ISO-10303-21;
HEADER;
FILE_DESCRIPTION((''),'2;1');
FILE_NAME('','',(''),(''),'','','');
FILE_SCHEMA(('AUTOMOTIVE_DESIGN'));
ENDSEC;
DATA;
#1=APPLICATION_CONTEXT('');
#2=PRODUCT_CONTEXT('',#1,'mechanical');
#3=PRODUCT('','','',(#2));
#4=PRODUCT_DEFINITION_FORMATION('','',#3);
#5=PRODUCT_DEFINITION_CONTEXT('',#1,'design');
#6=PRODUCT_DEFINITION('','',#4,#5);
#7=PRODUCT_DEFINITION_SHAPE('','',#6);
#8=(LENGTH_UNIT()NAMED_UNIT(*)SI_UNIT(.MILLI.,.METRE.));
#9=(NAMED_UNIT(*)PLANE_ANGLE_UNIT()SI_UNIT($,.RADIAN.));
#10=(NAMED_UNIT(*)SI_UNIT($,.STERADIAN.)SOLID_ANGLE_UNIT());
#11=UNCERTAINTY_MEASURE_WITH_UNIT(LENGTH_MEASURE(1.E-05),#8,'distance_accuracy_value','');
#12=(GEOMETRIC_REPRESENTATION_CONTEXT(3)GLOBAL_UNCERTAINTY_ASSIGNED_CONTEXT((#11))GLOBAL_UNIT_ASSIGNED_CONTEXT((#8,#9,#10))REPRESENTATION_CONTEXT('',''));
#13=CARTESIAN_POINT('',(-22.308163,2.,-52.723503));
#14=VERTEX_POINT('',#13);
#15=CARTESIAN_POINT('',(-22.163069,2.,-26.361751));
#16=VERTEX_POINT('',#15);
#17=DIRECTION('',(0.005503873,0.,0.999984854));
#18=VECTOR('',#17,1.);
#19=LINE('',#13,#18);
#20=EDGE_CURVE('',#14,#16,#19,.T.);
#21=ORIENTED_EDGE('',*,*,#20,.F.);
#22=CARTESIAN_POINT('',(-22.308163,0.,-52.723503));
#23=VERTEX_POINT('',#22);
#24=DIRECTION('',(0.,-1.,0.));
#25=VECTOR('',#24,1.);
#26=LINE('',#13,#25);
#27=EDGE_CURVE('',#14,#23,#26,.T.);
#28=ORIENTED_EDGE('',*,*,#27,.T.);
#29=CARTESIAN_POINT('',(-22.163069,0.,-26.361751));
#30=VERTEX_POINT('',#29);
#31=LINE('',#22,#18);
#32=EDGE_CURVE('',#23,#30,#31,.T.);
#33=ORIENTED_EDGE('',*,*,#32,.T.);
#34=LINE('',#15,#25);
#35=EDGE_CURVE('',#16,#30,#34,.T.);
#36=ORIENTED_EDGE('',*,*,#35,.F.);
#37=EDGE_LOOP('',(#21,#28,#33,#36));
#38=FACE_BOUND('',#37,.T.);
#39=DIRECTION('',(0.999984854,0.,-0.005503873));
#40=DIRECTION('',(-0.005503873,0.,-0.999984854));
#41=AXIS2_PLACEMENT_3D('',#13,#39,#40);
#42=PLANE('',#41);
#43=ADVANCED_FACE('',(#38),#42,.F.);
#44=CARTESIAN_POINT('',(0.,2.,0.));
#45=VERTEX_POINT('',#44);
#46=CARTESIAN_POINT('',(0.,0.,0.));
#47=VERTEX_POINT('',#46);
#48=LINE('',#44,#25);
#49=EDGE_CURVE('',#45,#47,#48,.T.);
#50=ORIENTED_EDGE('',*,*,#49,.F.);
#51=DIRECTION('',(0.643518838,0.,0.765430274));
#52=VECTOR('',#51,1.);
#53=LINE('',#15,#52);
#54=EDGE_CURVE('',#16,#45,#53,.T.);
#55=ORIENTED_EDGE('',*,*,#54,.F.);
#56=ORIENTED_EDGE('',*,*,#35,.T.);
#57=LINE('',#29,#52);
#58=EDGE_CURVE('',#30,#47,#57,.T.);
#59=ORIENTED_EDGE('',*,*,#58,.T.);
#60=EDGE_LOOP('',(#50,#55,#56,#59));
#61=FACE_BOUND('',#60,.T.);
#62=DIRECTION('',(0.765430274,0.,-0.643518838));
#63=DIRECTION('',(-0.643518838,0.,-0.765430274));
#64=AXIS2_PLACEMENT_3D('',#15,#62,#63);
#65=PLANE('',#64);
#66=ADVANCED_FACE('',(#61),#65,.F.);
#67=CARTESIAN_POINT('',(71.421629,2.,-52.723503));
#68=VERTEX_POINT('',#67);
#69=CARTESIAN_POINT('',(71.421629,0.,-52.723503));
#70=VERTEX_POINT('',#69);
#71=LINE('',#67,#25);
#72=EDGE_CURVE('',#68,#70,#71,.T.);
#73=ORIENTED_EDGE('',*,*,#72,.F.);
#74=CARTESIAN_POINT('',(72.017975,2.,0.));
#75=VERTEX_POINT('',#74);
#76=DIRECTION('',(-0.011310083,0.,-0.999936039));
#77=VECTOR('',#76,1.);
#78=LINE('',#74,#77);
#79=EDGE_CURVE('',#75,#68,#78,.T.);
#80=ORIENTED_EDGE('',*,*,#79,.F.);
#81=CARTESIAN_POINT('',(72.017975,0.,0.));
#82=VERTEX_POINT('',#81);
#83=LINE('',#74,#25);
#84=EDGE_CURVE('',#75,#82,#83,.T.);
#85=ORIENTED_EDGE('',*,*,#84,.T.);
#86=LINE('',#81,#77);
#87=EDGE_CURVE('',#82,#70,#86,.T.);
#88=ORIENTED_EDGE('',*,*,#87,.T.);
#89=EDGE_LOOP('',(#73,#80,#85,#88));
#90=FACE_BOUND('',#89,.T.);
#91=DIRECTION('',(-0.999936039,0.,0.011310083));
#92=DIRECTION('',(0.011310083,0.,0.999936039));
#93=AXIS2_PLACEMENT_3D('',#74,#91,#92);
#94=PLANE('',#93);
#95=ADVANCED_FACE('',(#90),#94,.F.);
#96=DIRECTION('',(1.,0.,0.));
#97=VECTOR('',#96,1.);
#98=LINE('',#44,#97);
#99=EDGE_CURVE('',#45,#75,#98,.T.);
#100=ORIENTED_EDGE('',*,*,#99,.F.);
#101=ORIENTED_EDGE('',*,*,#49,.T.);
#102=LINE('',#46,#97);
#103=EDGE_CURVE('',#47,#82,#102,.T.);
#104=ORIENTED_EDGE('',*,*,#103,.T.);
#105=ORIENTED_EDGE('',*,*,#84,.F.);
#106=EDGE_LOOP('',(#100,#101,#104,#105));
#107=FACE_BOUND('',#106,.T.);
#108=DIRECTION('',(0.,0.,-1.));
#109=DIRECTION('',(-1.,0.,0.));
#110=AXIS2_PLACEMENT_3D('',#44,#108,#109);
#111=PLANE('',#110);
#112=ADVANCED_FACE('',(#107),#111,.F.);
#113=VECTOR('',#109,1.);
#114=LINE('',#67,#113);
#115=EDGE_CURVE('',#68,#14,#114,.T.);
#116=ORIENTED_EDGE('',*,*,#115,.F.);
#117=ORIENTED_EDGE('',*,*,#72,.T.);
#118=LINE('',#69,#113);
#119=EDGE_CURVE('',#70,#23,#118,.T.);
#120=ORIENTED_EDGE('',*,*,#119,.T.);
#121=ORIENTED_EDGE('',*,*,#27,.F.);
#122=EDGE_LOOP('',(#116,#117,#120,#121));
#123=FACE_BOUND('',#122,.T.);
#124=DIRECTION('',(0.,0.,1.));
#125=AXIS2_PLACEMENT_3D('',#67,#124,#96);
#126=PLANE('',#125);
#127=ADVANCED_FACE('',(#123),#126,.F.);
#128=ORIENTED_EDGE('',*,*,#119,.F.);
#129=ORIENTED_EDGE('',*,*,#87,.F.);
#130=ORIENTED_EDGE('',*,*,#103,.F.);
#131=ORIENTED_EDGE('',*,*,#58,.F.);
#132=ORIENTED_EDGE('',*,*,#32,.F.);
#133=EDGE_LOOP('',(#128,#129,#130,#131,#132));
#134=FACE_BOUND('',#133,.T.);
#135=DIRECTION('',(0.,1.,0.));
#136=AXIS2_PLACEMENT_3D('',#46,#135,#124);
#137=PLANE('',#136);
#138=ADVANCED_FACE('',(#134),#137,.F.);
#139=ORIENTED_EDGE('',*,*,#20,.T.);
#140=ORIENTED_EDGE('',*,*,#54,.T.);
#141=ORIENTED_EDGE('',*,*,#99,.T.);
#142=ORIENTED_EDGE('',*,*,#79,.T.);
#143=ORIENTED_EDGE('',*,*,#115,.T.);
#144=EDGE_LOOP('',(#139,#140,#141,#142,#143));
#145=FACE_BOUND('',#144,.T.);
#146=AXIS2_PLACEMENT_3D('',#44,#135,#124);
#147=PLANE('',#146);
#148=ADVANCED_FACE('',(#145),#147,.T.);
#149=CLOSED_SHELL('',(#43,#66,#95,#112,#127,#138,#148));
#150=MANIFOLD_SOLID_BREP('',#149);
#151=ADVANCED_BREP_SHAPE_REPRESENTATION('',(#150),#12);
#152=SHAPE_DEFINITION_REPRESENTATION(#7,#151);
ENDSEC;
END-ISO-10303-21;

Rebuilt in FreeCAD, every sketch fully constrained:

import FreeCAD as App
import Part
import Sketcher

V = App.Vector
Q = App.Units.Quantity


def add_polygon(sketch, points):
    """Adds a closed chain of lines whose ends are joined by coincident constraints."""
    first, n = sketch.GeometryCount, len(points)
    for a, b in zip(points, points[1:] + points[:1]):
        sketch.addGeometry(Part.LineSegment(App.Vector(*a, 0), App.Vector(*b, 0)), False)
    for i in range(n):
        sketch.addConstraint(Sketcher.Constraint("Coincident", first + i, 2, first + (i + 1) % n, 1))

doc = App.newDocument("Part")
body = doc.addObject("PartDesign::Body", "Body")

# Sketch on XZ plane
sketch1 = body.newObject("Sketcher::SketchObject", "Sketch")
sketch1.AttachmentSupport = (doc.getObject("XZ_Plane"), [""])
sketch1.MapMode = "FlatFace"
add_polygon(sketch1, [(-22, -26), (0, 0), (72, 0), (71, -53), (-22, -53)])  # lines 0-4
sketch1.addConstraint([
    Sketcher.Constraint("Horizontal", 1),
    Sketcher.Constraint("Horizontal", 3),
    Sketcher.Constraint("Coincident", 0, 2, -1, 1),
    Sketcher.Constraint("DistanceX", 3, 2, 3, 1, Q("93.729792 mm")),
    Sketcher.Constraint("Distance", 4, Q("26.362151 mm")),
    Sketcher.Constraint("DistanceX", 1, 1, 1, 2, Q("72.017975 mm")),
    Sketcher.Constraint("DistanceX", -1, 1, 2, 2, Q("71.421629 mm")),
    Sketcher.Constraint("DistanceX", 4, 2, -1, 1, Q("22.163069 mm")),
    Sketcher.Constraint("DistanceY", 4, 2, -1, 1, Q("26.361751 mm")),
])
pad1 = body.newObject("PartDesign::Pad", "Pad")
pad1.Profile = sketch1
pad1.Length = 2
pad1.Reversed = True

doc.recompute()
